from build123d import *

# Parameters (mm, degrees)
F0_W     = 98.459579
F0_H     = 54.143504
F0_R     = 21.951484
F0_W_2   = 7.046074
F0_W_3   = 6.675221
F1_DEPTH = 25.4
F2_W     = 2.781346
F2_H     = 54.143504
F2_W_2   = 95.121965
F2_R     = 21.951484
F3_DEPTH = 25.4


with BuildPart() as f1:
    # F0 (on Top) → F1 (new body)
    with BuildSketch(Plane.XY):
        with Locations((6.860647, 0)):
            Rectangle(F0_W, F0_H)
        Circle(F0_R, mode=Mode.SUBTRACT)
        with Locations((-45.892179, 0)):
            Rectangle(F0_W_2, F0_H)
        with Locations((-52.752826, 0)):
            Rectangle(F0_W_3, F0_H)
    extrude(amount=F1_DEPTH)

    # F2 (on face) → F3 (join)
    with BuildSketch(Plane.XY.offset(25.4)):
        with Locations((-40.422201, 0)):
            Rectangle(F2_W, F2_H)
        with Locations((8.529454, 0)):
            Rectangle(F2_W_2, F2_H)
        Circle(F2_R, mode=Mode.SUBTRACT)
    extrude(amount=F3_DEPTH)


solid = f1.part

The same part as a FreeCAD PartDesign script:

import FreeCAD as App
import Part
import Sketcher

doc = App.newDocument("Part")
params = doc.addObject("Spreadsheet::Sheet", "Params")
for row, (alias, value) in enumerate([
    ("pad1_length", "1 in"),
    ("pad2_length", "1 in"),
], start=1):
    params.set(f"A{row}", alias)
    params.set(f"B{row}", "=" + value)
    params.setAlias(f"B{row}", alias)

body = doc.addObject("PartDesign::Body", "Body")

# Sketch on XY plane
sketch1 = body.newObject("Sketcher::SketchObject", "Sketch")
sketch1.AttachmentSupport = (doc.getObject("XY_Plane"), [""])
sketch1.MapMode = "FlatFace"
sketch1.addGeometry(Part.LineSegment(App.Vector(-56, 27, 0), App.Vector(-56, -27, 0)), False)
sketch1.addGeometry(Part.LineSegment(App.Vector(-56, -27, 0), App.Vector(56, -27, 0)), False)
sketch1.addGeometry(Part.LineSegment(App.Vector(56, -27, 0), App.Vector(56, 27, 0)), False)
sketch1.addGeometry(Part.LineSegment(App.Vector(56, 27, 0), App.Vector(-56, 27, 0)), False)
sketch1.addGeometry(Part.Circle(App.Vector(0, 0, 0), App.Vector(0, 0, 1), 22), False)
sketch1.addConstraint(Sketcher.Constraint("Coincident", 0, 2, 1, 1))
sketch1.addConstraint(Sketcher.Constraint("Coincident", 1, 2, 2, 1))
sketch1.addConstraint(Sketcher.Constraint("Coincident", 2, 2, 3, 1))
sketch1.addConstraint(Sketcher.Constraint("Coincident", 3, 2, 0, 1))
sketch1.addConstraint(Sketcher.Constraint("Vertical", 0))
sketch1.addConstraint(Sketcher.Constraint("Horizontal", 1))
sketch1.addConstraint(Sketcher.Constraint("Vertical", 2))
sketch1.addConstraint(Sketcher.Constraint("Horizontal", 3))
sketch1.addConstraint(Sketcher.Constraint("Coincident", 4, 3, -1, 1))
sketch1.addConstraint(Sketcher.Constraint("Symmetric", 0, 2, 2, 2, -1, 1))
sketch1.addConstraint(Sketcher.Constraint("Diameter", 4, 43.902968))
sketch1.addConstraint(Sketcher.Constraint("DistanceX", 1, 1, 1, 2, 112.180873))
sketch1.addConstraint(Sketcher.Constraint("DistanceY", 0, 2, 0, 1, 54.143504))
pad1 = body.newObject("PartDesign::Pad", "Pad")
pad1.Profile = sketch1
pad1.setExpression("Length", "Params.pad1_length")

# Sketch on XY plane
sketch2 = body.newObject("Sketcher::SketchObject", "Sketch001")
sketch2.AttachmentSupport = (doc.getObject("XY_Plane"), [""])
sketch2.MapMode = "FlatFace"
sketch2.AttachmentOffset = App.Placement(App.Vector(0, 0, 1 * 25.4), App.Rotation())
sketch2.addGeometry(Part.LineSegment(App.Vector(-42, 27, 0), App.Vector(-42, -27, 0)), False)
sketch2.addGeometry(Part.LineSegment(App.Vector(-42, -27, 0), App.Vector(56, -27, 0)), False)
sketch2.addGeometry(Part.LineSegment(App.Vector(56, -27, 0), App.Vector(56, 27, 0)), False)
sketch2.addGeometry(Part.LineSegment(App.Vector(56, 27, 0), App.Vector(-42, 27, 0)), False)
sketch2.addGeometry(Part.Circle(App.Vector(0, 0, 0), App.Vector(0, 0, 1), 22), False)
sketch2.addConstraint(Sketcher.Constraint("Coincident", 0, 2, 1, 1))
sketch2.addConstraint(Sketcher.Constraint("Coincident", 1, 2, 2, 1))
sketch2.addConstraint(Sketcher.Constraint("Coincident", 2, 2, 3, 1))
sketch2.addConstraint(Sketcher.Constraint("Coincident", 3, 2, 0, 1))
sketch2.addConstraint(Sketcher.Constraint("Vertical", 0))
sketch2.addConstraint(Sketcher.Constraint("Horizontal", 1))
sketch2.addConstraint(Sketcher.Constraint("Vertical", 2))
sketch2.addConstraint(Sketcher.Constraint("Horizontal", 3))
sketch2.addConstraint(Sketcher.Constraint("Coincident", 4, 3, -1, 1))
sketch2.addConstraint(Sketcher.Constraint("Diameter", 4, 43.902968))
sketch2.addConstraint(Sketcher.Constraint("DistanceX", 1, 1, 1, 2, 97.903311))
sketch2.addConstraint(Sketcher.Constraint("DistanceY", 0, 2, 0, 1, 54.143504))
sketch2.addConstraint(Sketcher.Constraint("DistanceY", 0, 2, -1, 1, 27.071752))
sketch2.addConstraint(Sketcher.Constraint("DistanceX", 0, 2, -1, 1, 41.812874))
pad2 = body.newObject("PartDesign::Pad", "Pad001")
pad2.Profile = sketch2
pad2.setExpression("Length", "Params.pad2_length")

doc.recompute()
